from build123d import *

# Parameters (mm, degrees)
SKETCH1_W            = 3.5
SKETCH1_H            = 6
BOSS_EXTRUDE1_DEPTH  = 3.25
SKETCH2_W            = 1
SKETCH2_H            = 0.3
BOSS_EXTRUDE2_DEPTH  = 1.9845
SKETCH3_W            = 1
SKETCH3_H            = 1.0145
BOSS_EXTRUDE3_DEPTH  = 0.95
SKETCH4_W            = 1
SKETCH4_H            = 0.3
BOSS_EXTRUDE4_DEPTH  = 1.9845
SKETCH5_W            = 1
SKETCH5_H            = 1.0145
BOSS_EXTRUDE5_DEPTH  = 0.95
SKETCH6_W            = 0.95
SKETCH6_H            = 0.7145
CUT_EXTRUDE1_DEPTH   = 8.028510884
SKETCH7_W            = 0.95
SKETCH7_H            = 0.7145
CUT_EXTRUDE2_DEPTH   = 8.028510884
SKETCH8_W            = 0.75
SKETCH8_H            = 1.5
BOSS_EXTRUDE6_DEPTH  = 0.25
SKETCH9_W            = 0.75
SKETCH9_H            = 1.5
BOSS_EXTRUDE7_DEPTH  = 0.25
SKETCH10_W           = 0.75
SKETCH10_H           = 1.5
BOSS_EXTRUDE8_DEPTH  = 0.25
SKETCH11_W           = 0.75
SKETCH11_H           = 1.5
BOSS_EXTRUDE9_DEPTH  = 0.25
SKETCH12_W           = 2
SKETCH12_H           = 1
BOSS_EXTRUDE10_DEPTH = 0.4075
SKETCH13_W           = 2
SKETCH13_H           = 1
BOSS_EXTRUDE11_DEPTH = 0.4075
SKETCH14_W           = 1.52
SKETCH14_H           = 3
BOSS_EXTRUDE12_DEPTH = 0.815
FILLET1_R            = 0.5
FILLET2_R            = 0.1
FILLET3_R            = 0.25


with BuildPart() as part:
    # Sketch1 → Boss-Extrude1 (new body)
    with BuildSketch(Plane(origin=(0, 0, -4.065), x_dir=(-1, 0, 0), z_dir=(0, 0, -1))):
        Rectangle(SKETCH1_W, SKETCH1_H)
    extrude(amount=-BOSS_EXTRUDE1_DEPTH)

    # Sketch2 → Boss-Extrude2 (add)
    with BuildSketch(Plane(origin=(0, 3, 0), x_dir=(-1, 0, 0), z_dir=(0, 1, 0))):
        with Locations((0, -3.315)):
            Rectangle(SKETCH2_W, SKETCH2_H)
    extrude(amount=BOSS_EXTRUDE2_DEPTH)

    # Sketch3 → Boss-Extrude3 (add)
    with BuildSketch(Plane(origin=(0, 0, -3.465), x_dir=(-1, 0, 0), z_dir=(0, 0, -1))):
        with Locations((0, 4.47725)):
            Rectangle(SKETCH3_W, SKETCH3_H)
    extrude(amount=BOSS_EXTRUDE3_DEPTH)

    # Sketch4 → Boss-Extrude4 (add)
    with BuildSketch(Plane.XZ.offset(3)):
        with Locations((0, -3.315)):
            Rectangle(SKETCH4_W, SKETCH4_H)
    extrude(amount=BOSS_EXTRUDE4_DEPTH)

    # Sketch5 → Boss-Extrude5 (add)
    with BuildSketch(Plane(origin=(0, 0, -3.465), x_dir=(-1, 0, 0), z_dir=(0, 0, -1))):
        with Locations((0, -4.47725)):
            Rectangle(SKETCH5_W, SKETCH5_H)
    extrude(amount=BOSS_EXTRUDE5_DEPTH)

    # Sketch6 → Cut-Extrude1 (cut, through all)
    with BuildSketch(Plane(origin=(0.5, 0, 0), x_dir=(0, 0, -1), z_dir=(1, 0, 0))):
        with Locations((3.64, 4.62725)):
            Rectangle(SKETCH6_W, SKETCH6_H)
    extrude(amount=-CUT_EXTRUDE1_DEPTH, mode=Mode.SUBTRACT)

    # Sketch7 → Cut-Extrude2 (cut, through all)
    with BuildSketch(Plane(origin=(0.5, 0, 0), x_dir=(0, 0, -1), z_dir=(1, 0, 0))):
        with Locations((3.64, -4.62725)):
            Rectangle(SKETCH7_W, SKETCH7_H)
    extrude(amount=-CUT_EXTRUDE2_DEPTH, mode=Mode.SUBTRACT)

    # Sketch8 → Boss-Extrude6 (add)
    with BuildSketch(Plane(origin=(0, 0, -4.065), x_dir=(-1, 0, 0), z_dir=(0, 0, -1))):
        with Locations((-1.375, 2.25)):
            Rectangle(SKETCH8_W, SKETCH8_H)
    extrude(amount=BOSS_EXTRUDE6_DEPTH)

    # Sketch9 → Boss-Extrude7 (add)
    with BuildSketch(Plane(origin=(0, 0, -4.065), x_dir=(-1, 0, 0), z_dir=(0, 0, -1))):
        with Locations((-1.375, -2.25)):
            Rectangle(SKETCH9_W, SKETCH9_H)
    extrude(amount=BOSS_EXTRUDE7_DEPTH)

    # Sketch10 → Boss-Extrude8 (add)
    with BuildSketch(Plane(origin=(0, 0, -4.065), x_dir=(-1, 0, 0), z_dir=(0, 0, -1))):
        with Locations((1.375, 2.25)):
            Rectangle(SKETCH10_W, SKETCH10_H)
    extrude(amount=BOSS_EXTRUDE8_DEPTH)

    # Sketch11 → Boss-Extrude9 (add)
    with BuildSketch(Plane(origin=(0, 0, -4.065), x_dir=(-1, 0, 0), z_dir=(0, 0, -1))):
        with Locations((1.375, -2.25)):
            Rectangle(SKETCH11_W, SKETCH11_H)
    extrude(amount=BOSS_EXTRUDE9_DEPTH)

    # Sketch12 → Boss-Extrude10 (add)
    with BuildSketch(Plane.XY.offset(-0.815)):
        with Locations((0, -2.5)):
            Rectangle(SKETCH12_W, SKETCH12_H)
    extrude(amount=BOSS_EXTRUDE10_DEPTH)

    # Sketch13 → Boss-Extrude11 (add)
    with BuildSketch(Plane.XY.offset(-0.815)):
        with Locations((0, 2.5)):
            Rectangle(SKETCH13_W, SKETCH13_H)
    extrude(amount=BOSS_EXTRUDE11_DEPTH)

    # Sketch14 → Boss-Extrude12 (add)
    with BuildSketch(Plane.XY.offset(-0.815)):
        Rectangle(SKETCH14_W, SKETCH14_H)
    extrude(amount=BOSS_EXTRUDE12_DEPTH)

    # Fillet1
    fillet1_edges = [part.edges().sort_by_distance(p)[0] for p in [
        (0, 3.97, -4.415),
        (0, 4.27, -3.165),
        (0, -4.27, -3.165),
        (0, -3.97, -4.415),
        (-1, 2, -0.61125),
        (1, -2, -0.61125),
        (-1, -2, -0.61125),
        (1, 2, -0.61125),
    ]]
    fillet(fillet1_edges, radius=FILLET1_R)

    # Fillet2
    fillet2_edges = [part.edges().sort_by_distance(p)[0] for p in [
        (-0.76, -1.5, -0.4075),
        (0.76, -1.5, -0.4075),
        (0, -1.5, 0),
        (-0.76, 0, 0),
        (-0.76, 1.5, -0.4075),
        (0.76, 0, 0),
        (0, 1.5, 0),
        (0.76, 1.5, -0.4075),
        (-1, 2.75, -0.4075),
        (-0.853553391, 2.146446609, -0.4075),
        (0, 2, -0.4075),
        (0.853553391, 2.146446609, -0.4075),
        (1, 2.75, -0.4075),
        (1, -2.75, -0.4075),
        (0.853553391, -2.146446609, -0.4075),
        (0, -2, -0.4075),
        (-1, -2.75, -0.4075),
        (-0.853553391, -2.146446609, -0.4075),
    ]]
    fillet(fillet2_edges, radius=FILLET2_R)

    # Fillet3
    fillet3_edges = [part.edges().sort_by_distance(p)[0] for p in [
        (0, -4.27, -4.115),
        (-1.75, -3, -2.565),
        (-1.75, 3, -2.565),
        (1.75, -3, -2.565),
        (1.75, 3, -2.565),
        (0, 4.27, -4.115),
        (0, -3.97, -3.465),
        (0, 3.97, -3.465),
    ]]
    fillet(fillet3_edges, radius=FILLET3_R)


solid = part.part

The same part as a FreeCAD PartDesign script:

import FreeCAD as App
import Part
import Sketcher
from FreeCAD import Vector
Q = App.Units.Quantity


def edges_at(feature, points):
    """Names of the edges that pass closest to the given points."""
    edges = feature.Shape.Edges
    near = lambda p: min(range(len(edges)), key=lambda i: edges[i].distToShape(Part.Vertex(*p))[0])
    return sorted({f"Edge{near(p) + 1}" for p in points})

doc = App.newDocument("Part")
params = doc.addObject("Spreadsheet::Sheet", "Params")
for row, (alias, value) in enumerate([
    ("sketch1_height", "6 mm"),
    ("sketch1_width", "3.5 mm"),
    ("pad1_length", "3.25 mm"),
    ("sketch2_width", "1 mm"),
    ("sketch2_height", "0.3 mm"),
    ("pad2_length", "1.9845 mm"),
    ("sketch3_width", "1 mm"),
    ("pad3_length", "0.95 mm"),
    ("sketch4_width", "1 mm"),
    ("sketch4_height", "0.3 mm"),
    ("pad4_length", "1.9845 mm"),
    ("sketch5_width", "1 mm"),
    ("pad5_length", "0.95 mm"),
    ("sketch6_height", "0.95 mm"),
    ("sketch7_height", "0.95 mm"),
    ("sketch8_height", "1.5 mm"),
    ("sketch8_width", "0.75 mm"),
    ("pad6_length", "0.25 mm"),
    ("sketch9_height", "1.5 mm"),
    ("sketch9_width", "0.75 mm"),
    ("pad7_length", "0.25 mm"),
    ("sketch10_height", "1.5 mm"),
    ("sketch10_width", "0.75 mm"),
    ("pad8_length", "0.25 mm"),
    ("sketch11_height", "1.5 mm"),
    ("sketch11_width", "0.75 mm"),
    ("pad9_length", "0.25 mm"),
    ("sketch12_width", "2 mm"),
    ("sketch12_height", "1 mm"),
    ("pad10_length", "0.4075 mm"),
    ("sketch13_width", "2 mm"),
    ("sketch13_height", "1 mm"),
    ("pad11_length", "0.4075 mm"),
    ("sketch14_height", "3 mm"),
    ("sketch14_width", "1.52 mm"),
    ("pad12_length", "0.815 mm"),
    ("fillet_radius", "0.5 mm"),
    ("fillet2_radius", "0.1 mm"),
    ("fillet3_radius", "0.25 mm"),
], start=1):
    params.set(f"A{row}", alias)
    params.set(f"B{row}", "=" + value)
    params.setAlias(f"B{row}", alias)

body = doc.addObject("PartDesign::Body", "Body")

sketch1 = doc.addObject("Sketcher::SketchObject", "Sketch")
body.addObject(sketch1)
sketch1.AttachmentSupport = (doc.XY_Plane, [""])
sketch1.MapMode = "FlatFace"
sketch1.AttachmentOffset = App.Placement(Vector(0, 0, -4.065), App.Rotation())
sketch1.addGeometry(Part.LineSegment(Vector(1.8, 3, 0), Vector(1.8, -3, 0)), False)
sketch1.addGeometry(Part.LineSegment(Vector(1.8, -3, 0), Vector(-1.8, -3, 0)), False)
sketch1.addGeometry(Part.LineSegment(Vector(-1.8, -3, 0), Vector(-1.8, 3, 0)), False)
sketch1.addGeometry(Part.LineSegment(Vector(-1.8, 3, 0), Vector(1.8, 3, 0)), False)
sketch1.addConstraint(Sketcher.Constraint("Coincident", 0, 2, 1, 1))
sketch1.addConstraint(Sketcher.Constraint("Coincident", 1, 2, 2, 1))
sketch1.addConstraint(Sketcher.Constraint("Coincident", 2, 2, 3, 1))
sketch1.addConstraint(Sketcher.Constraint("Coincident", 3, 2, 0, 1))
sketch1.addConstraint(Sketcher.Constraint("Vertical", 0))
sketch1.addConstraint(Sketcher.Constraint("Horizontal", 1))
sketch1.addConstraint(Sketcher.Constraint("Vertical", 2))
sketch1.addConstraint(Sketcher.Constraint("Horizontal", 3))
sketch1.addConstraint(Sketcher.Constraint("Symmetric", 0, 2, 2, 2, -1, 1))
sketch1.addConstraint(Sketcher.Constraint("DistanceY", 0, 2, 0, 1, Q("6 mm")))
sketch1.addConstraint(Sketcher.Constraint("DistanceX", 1, 2, 1, 1, Q("3.5 mm")))
sketch1.setExpression("Constraints[9]", "Params.sketch1_height")
sketch1.setExpression("Constraints[10]", "Params.sketch1_width")
pad1 = doc.addObject("PartDesign::Pad", "Pad")
body.addObject(pad1)
pad1.Profile = sketch1
pad1.setExpression("Length", "Params.pad1_length")

sketch2 = doc.addObject("Sketcher::SketchObject", "Sketch001")
body.addObject(sketch2)
sketch2.AttachmentSupport = (doc.XZ_Plane, [""])
sketch2.MapMode = "FlatFace"
sketch2.AttachmentOffset = App.Placement(Vector(0, 0, -3), App.Rotation())
sketch2.addGeometry(Part.LineSegment(Vector(0.5, -3.17, 0), Vector(0.5, -3.46, 0)), False)
sketch2.addGeometry(Part.LineSegment(Vector(0.5, -3.46, 0), Vector(-0.5, -3.46, 0)), False)
sketch2.addGeometry(Part.LineSegment(Vector(-0.5, -3.46, 0), Vector(-0.5, -3.17, 0)), False)
sketch2.addGeometry(Part.LineSegment(Vector(-0.5, -3.17, 0), Vector(0.5, -3.17, 0)), False)
sketch2.addConstraint(Sketcher.Constraint("Coincident", 0, 2, 1, 1))
sketch2.addConstraint(Sketcher.Constraint("Coincident", 1, 2, 2, 1))
sketch2.addConstraint(Sketcher.Constraint("Coincident", 2, 2, 3, 1))
sketch2.addConstraint(Sketcher.Constraint("Coincident", 3, 2, 0, 1))
sketch2.addConstraint(Sketcher.Constraint("Vertical", 0))
sketch2.addConstraint(Sketcher.Constraint("Horizontal", 1))
sketch2.addConstraint(Sketcher.Constraint("Vertical", 2))
sketch2.addConstraint(Sketcher.Constraint("Horizontal", 3))
sketch2.addConstraint(Sketcher.Constraint("DistanceX", 1, 2, 1, 1, Q("1 mm")))
sketch2.addConstraint(Sketcher.Constraint("DistanceY", 0, 2, 0, 1, Q("0.3 mm")))
sketch2.addConstraint(Sketcher.Constraint("DistanceX", -1, 1, 0, 2, Q("0.5 mm")))
sketch2.addConstraint(Sketcher.Constraint("DistanceY", 0, 2, -1, 1, Q("3.465 mm")))
sketch2.setExpression("Constraints[8]", "Params.sketch2_width")
sketch2.setExpression("Constraints[9]", "Params.sketch2_height")
pad2 = doc.addObject("PartDesign::Pad", "Pad001")
body.addObject(pad2)
pad2.Profile = sketch2
pad2.setExpression("Length", "Params.pad2_length")
pad2.Reversed = True

sketch3 = doc.addObject("Sketcher::SketchObject", "Sketch002")
body.addObject(sketch3)
sketch3.AttachmentSupport = (doc.XY_Plane, [""])
sketch3.MapMode = "FlatFace"
sketch3.AttachmentOffset = App.Placement(Vector(0, 0, -3.465), App.Rotation())
sketch3.addGeometry(Part.LineSegment(Vector(0.5, 5, 0), Vector(0.5, 4, 0)), False)
sketch3.addGeometry(Part.LineSegment(Vector(0.5, 4, 0), Vector(-0.5, 4, 0)), False)
sketch3.addGeometry(Part.LineSegment(Vector(-0.5, 4, 0), Vector(-0.5, 5, 0)), False)
sketch3.addGeometry(Part.LineSegment(Vector(-0.5, 5, 0), Vector(0.5, 5, 0)), False)
sketch3.addConstraint(Sketcher.Constraint("Coincident", 0, 2, 1, 1))
sketch3.addConstraint(Sketcher.Constraint("Coincident", 1, 2, 2, 1))
sketch3.addConstraint(Sketcher.Constraint("Coincident", 2, 2, 3, 1))
sketch3.addConstraint(Sketcher.Constraint("Coincident", 3, 2, 0, 1))
sketch3.addConstraint(Sketcher.Constraint("Vertical", 0))
sketch3.addConstraint(Sketcher.Constraint("Horizontal", 1))
sketch3.addConstraint(Sketcher.Constraint("Vertical", 2))
sketch3.addConstraint(Sketcher.Constraint("Horizontal", 3))
sketch3.addConstraint(Sketcher.Constraint("DistanceX", 1, 2, 1, 1, Q("1 mm")))
sketch3.addConstraint(Sketcher.Constraint("DistanceX", -1, 1, 0, 2, Q("0.5 mm")))
sketch3.addConstraint(Sketcher.Constraint("DistanceY", -1, 1, 0, 2, Q("3.97 mm")))
sketch3.addConstraint(Sketcher.Constraint("DistanceY", 0, 2, 0, 1, Q("1.0145 mm")))
sketch3.setExpression("Constraints[8]", "Params.sketch3_width")
pad3 = doc.addObject("PartDesign::Pad", "Pad002")
body.addObject(pad3)
pad3.Profile = sketch3
pad3.setExpression("Length", "Params.pad3_length")
pad3.Reversed = True

sketch4 = doc.addObject("Sketcher::SketchObject", "Sketch003")
body.addObject(sketch4)
sketch4.AttachmentSupport = (doc.XZ_Plane, [""])
sketch4.MapMode = "FlatFace"
sketch4.AttachmentOffset = App.Placement(Vector(0, 0, 3), App.Rotation())
sketch4.addGeometry(Part.LineSegment(Vector(-0.5, -3.17, 0), Vector(-0.5, -3.46, 0)), False)
sketch4.addGeometry(Part.LineSegment(Vector(-0.5, -3.46, 0), Vector(0.5, -3.46, 0)), False)
sketch4.addGeometry(Part.LineSegment(Vector(0.5, -3.46, 0), Vector(0.5, -3.17, 0)), False)
sketch4.addGeometry(Part.LineSegment(Vector(0.5, -3.17, 0), Vector(-0.5, -3.17, 0)), False)
sketch4.addConstraint(Sketcher.Constraint("Coincident", 0, 2, 1, 1))
sketch4.addConstraint(Sketcher.Constraint("Coincident", 1, 2, 2, 1))
sketch4.addConstraint(Sketcher.Constraint("Coincident", 2, 2, 3, 1))
sketch4.addConstraint(Sketcher.Constraint("Coincident", 3, 2, 0, 1))
sketch4.addConstraint(Sketcher.Constraint("Vertical", 0))
sketch4.addConstraint(Sketcher.Constraint("Horizontal", 1))
sketch4.addConstraint(Sketcher.Constraint("Vertical", 2))
sketch4.addConstraint(Sketcher.Constraint("Horizontal", 3))
sketch4.addConstraint(Sketcher.Constraint("DistanceX", 1, 1, 1, 2, Q("1 mm")))
sketch4.addConstraint(Sketcher.Constraint("DistanceY", 0, 2, 0, 1, Q("0.3 mm")))
sketch4.addConstraint(Sketcher.Constraint("DistanceX", 0, 2, -1, 1, Q("0.5 mm")))
sketch4.addConstraint(Sketcher.Constraint("DistanceY", 0, 2, -1, 1, Q("3.465 mm")))
sketch4.setExpression("Constraints[8]", "Params.sketch4_width")
sketch4.setExpression("Constraints[9]", "Params.sketch4_height")
pad4 = doc.addObject("PartDesign::Pad", "Pad003")
body.addObject(pad4)
pad4.Profile = sketch4
pad4.setExpression("Length", "Params.pad4_length")

sketch5 = doc.addObject("Sketcher::SketchObject", "Sketch004")
body.addObject(sketch5)
sketch5.AttachmentSupport = (doc.XY_Plane, [""])
sketch5.MapMode = "FlatFace"
sketch5.AttachmentOffset = App.Placement(Vector(0, 0, -3.465), App.Rotation())
sketch5.addGeometry(Part.LineSegment(Vector(0.5, -4, 0), Vector(0.5, -5, 0)), False)
sketch5.addGeometry(Part.LineSegment(Vector(0.5, -5, 0), Vector(-0.5, -5, 0)), False)
sketch5.addGeometry(Part.LineSegment(Vector(-0.5, -5, 0), Vector(-0.5, -4, 0)), False)
sketch5.addGeometry(Part.LineSegment(Vector(-0.5, -4, 0), Vector(0.5, -4, 0)), False)
sketch5.addConstraint(Sketcher.Constraint("Coincident", 0, 2, 1, 1))
sketch5.addConstraint(Sketcher.Constraint("Coincident", 1, 2, 2, 1))
sketch5.addConstraint(Sketcher.Constraint("Coincident", 2, 2, 3, 1))
sketch5.addConstraint(Sketcher.Constraint("Coincident", 3, 2, 0, 1))
sketch5.addConstraint(Sketcher.Constraint("Vertical", 0))
sketch5.addConstraint(Sketcher.Constraint("Horizontal", 1))
sketch5.addConstraint(Sketcher.Constraint("Vertical", 2))
sketch5.addConstraint(Sketcher.Constraint("Horizontal", 3))
sketch5.addConstraint(Sketcher.Constraint("DistanceX", 1, 2, 1, 1, Q("1 mm")))
sketch5.addConstraint(Sketcher.Constraint("DistanceX", -1, 1, 0, 2, Q("0.5 mm")))
sketch5.addConstraint(Sketcher.Constraint("DistanceY", 2, 2, -1, 1, Q("3.97 mm")))
sketch5.addConstraint(Sketcher.Constraint("DistanceY", 0, 2, 0, 1, Q("1.0145 mm")))
sketch5.setExpression("Constraints[8]", "Params.sketch5_width")
pad5 = doc.addObject("PartDesign::Pad", "Pad004")
body.addObject(pad5)
pad5.Profile = sketch5
pad5.setExpression("Length", "Params.pad5_length")
pad5.Reversed = True

sketch6 = doc.addObject("Sketcher::SketchObject", "Sketch005")
body.addObject(sketch6)
sketch6.AttachmentSupport = (doc.YZ_Plane, [""])
sketch6.MapMode = "FlatFace"
sketch6.AttachmentOffset = App.Placement(Vector(0, 0, 0.5), App.Rotation())
sketch6.addGeometry(Part.LineSegment(Vector(5, -3.2, 0), Vector(4.3, -3.2, 0)), False)
sketch6.addGeometry(Part.LineSegment(Vector(4.3, -3.2, 0), Vector(4.3, -4.1, 0)), False)
sketch6.addGeometry(Part.LineSegment(Vector(4.3, -4.1, 0), Vector(5, -4.1, 0)), False)
sketch6.addGeometry(Part.LineSegment(Vector(5, -4.1, 0), Vector(5, -3.2, 0)), False)
sketch6.addConstraint(Sketcher.Constraint("Coincident", 0, 2, 1, 1))
sketch6.addConstraint(Sketcher.Constraint("Coincident", 1, 2, 2, 1))
sketch6.addConstraint(Sketcher.Constraint("Coincident", 2, 2, 3, 1))
sketch6.addConstraint(Sketcher.Constraint("Coincident", 3, 2, 0, 1))
sketch6.addConstraint(Sketcher.Constraint("Horizontal", 0))
sketch6.addConstraint(Sketcher.Constraint("Vertical", 1))
sketch6.addConstraint(Sketcher.Constraint("Horizontal", 2))
sketch6.addConstraint(Sketcher.Constraint("Vertical", 3))
sketch6.addConstraint(Sketcher.Constraint("DistanceY", 1, 2, 1, 1, Q("0.95 mm")))
sketch6.addConstraint(Sketcher.Constraint("DistanceX", -1, 1, 0, 2, Q("4.27 mm")))
sketch6.addConstraint(Sketcher.Constraint("DistanceX", 0, 2, 0, 1, Q("0.7145 mm")))
sketch6.addConstraint(Sketcher.Constraint("DistanceY", 0, 2, -1, 1, Q("3.165 mm")))
sketch6.setExpression("Constraints[8]", "Params.sketch6_height")
pocket1 = doc.addObject("PartDesign::Pocket", "Pocket")
body.addObject(pocket1)
pocket1.Profile = sketch6
pocket1.Type = "ThroughAll"

sketch7 = doc.addObject("Sketcher::SketchObject", "Sketch006")
body.addObject(sketch7)
sketch7.AttachmentSupport = (doc.YZ_Plane, [""])
sketch7.MapMode = "FlatFace"
sketch7.AttachmentOffset = App.Placement(Vector(0, 0, 0.5), App.Rotation())
sketch7.addGeometry(Part.LineSegment(Vector(-4.3, -3.2, 0), Vector(-5, -3.2, 0)), False)
sketch7.addGeometry(Part.LineSegment(Vector(-5, -3.2, 0), Vector(-5, -4.1, 0)), False)
sketch7.addGeometry(Part.LineSegment(Vector(-5, -4.1, 0), Vector(-4.3, -4.1, 0)), False)
sketch7.addGeometry(Part.LineSegment(Vector(-4.3, -4.1, 0), Vector(-4.3, -3.2, 0)), False)
sketch7.addConstraint(Sketcher.Constraint("Coincident", 0, 2, 1, 1))
sketch7.addConstraint(Sketcher.Constraint("Coincident", 1, 2, 2, 1))
sketch7.addConstraint(Sketcher.Constraint("Coincident", 2, 2, 3, 1))
sketch7.addConstraint(Sketcher.Constraint("Coincident", 3, 2, 0, 1))
sketch7.addConstraint(Sketcher.Constraint("Horizontal", 0))
sketch7.addConstraint(Sketcher.Constraint("Vertical", 1))
sketch7.addConstraint(Sketcher.Constraint("Horizontal", 2))
sketch7.addConstraint(Sketcher.Constraint("Vertical", 3))
sketch7.addConstraint(Sketcher.Constraint("DistanceY", 1, 2, 1, 1, Q("0.95 mm")))
sketch7.addConstraint(Sketcher.Constraint("DistanceX", 2, 2, -1, 1, Q("4.27 mm")))
sketch7.addConstraint(Sketcher.Constraint("DistanceX", 0, 2, 0, 1, Q("0.7145 mm")))
sketch7.addConstraint(Sketcher.Constraint("DistanceY", 0, 2, -1, 1, Q("3.165 mm")))
sketch7.setExpression("Constraints[8]", "Params.sketch7_height")
pocket2 = doc.addObject("PartDesign::Pocket", "Pocket001")
body.addObject(pocket2)
pocket2.Profile = sketch7
pocket2.Type = "ThroughAll"

sketch8 = doc.addObject("Sketcher::SketchObject", "Sketch007")
body.addObject(sketch8)
sketch8.AttachmentSupport = (doc.XY_Plane, [""])
sketch8.MapMode = "FlatFace"
sketch8.AttachmentOffset = App.Placement(Vector(0, 0, -4.065), App.Rotation())
sketch8.addGeometry(Part.LineSegment(Vector(1.8, 3, 0), Vector(1.8, 1.5, 0)), False)
sketch8.addGeometry(Part.LineSegment(Vector(1.8, 1.5, 0), Vector(1, 1.5, 0)), False)
sketch8.addGeometry(Part.LineSegment(Vector(1, 1.5, 0), Vector(1, 3, 0)), False)
sketch8.addGeometry(Part.LineSegment(Vector(1, 3, 0), Vector(1.8, 3, 0)), False)
sketch8.addConstraint(Sketcher.Constraint("Coincident", 0, 2, 1, 1))
sketch8.addConstraint(Sketcher.Constraint("Coincident", 1, 2, 2, 1))
sketch8.addConstraint(Sketcher.Constraint("Coincident", 2, 2, 3, 1))
sketch8.addConstraint(Sketcher.Constraint("Coincident", 3, 2, 0, 1))
sketch8.addConstraint(Sketcher.Constraint("Vertical", 0))
sketch8.addConstraint(Sketcher.Constraint("Horizontal", 1))
sketch8.addConstraint(Sketcher.Constraint("Vertical", 2))
sketch8.addConstraint(Sketcher.Constraint("Horizontal", 3))
sketch8.addConstraint(Sketcher.Constraint("DistanceY", 0, 2, 0, 1, Q("1.5 mm")))
sketch8.addConstraint(Sketcher.Constraint("DistanceX", -1, 1, 1, 2, Q("1 mm")))
sketch8.addConstraint(Sketcher.Constraint("DistanceY", -1, 1, 2, 2, Q("3 mm")))
sketch8.addConstraint(Sketcher.Constraint("DistanceX", 1, 2, 1, 1, Q("0.75 mm")))
sketch8.setExpression("Constraints[8]", "Params.sketch8_height")
sketch8.setExpression("Constraints[11]", "Params.sketch8_width")
pad6 = doc.addObject("PartDesign::Pad", "Pad005")
body.addObject(pad6)
pad6.Profile = sketch8
pad6.setExpression("Length", "Params.pad6_length")
pad6.Reversed = True

sketch9 = doc.addObject("Sketcher::SketchObject", "Sketch008")
body.addObject(sketch9)
sketch9.AttachmentSupport = (doc.XY_Plane, [""])
sketch9.MapMode = "FlatFace"
sketch9.AttachmentOffset = App.Placement(Vector(0, 0, -4.065), App.Rotation())
sketch9.addGeometry(Part.LineSegment(Vector(1.8, -1.5, 0), Vector(1.8, -3, 0)), False)
sketch9.addGeometry(Part.LineSegment(Vector(1.8, -3, 0), Vector(1, -3, 0)), False)
sketch9.addGeometry(Part.LineSegment(Vector(1, -3, 0), Vector(1, -1.5, 0)), False)
sketch9.addGeometry(Part.LineSegment(Vector(1, -1.5, 0), Vector(1.8, -1.5, 0)), False)
sketch9.addConstraint(Sketcher.Constraint("Coincident", 0, 2, 1, 1))
sketch9.addConstraint(Sketcher.Constraint("Coincident", 1, 2, 2, 1))
sketch9.addConstraint(Sketcher.Constraint("Coincident", 2, 2, 3, 1))
sketch9.addConstraint(Sketcher.Constraint("Coincident", 3, 2, 0, 1))
sketch9.addConstraint(Sketcher.Constraint("Vertical", 0))
sketch9.addConstraint(Sketcher.Constraint("Horizontal", 1))
sketch9.addConstraint(Sketcher.Constraint("Vertical", 2))
sketch9.addConstraint(Sketcher.Constraint("Horizontal", 3))
sketch9.addConstraint(Sketcher.Constraint("DistanceY", 0, 2, 0, 1, Q("1.5 mm")))
sketch9.addConstraint(Sketcher.Constraint("DistanceY", 0, 2, -1, 1, Q("3 mm")))
sketch9.addConstraint(Sketcher.Constraint("DistanceX", -1, 1, 1, 2, Q("1 mm")))
sketch9.addConstraint(Sketcher.Constraint("DistanceX", 1, 2, 1, 1, Q("0.75 mm")))
sketch9.setExpression("Constraints[8]", "Params.sketch9_height")
sketch9.setExpression("Constraints[11]", "Params.sketch9_width")
pad7 = doc.addObject("PartDesign::Pad", "Pad006")
body.addObject(pad7)
pad7.Profile = sketch9
pad7.setExpression("Length", "Params.pad7_length")
pad7.Reversed = True

sketch10 = doc.addObject("Sketcher::SketchObject", "Sketch009")
body.addObject(sketch10)
sketch10.AttachmentSupport = (doc.XY_Plane, [""])
sketch10.MapMode = "FlatFace"
sketch10.AttachmentOffset = App.Placement(Vector(0, 0, -4.065), App.Rotation())
sketch10.addGeometry(Part.LineSegment(Vector(-1, 3, 0), Vector(-1, 1.5, 0)), False)
sketch10.addGeometry(Part.LineSegment(Vector(-1, 1.5, 0), Vector(-1.8, 1.5, 0)), False)
sketch10.addGeometry(Part.LineSegment(Vector(-1.8, 1.5, 0), Vector(-1.8, 3, 0)), False)
sketch10.addGeometry(Part.LineSegment(Vector(-1.8, 3, 0), Vector(-1, 3, 0)), False)
sketch10.addConstraint(Sketcher.Constraint("Coincident", 0, 2, 1, 1))
sketch10.addConstraint(Sketcher.Constraint("Coincident", 1, 2, 2, 1))
sketch10.addConstraint(Sketcher.Constraint("Coincident", 2, 2, 3, 1))
sketch10.addConstraint(Sketcher.Constraint("Coincident", 3, 2, 0, 1))
sketch10.addConstraint(Sketcher.Constraint("Vertical", 0))
sketch10.addConstraint(Sketcher.Constraint("Horizontal", 1))
sketch10.addConstraint(Sketcher.Constraint("Vertical", 2))
sketch10.addConstraint(Sketcher.Constraint("Horizontal", 3))
sketch10.addConstraint(Sketcher.Constraint("DistanceY", 0, 2, 0, 1, Q("1.5 mm")))
sketch10.addConstraint(Sketcher.Constraint("DistanceX", 0, 2, -1, 1, Q("1 mm")))
sketch10.addConstraint(Sketcher.Constraint("DistanceY", -1, 1, 2, 2, Q("3 mm")))
sketch10.addConstraint(Sketcher.Constraint("DistanceX", 1, 2, 1, 1, Q("0.75 mm")))
sketch10.setExpression("Constraints[8]", "Params.sketch10_height")
sketch10.setExpression("Constraints[11]", "Params.sketch10_width")
pad8 = doc.addObject("PartDesign::Pad", "Pad007")
body.addObject(pad8)
pad8.Profile = sketch10
pad8.setExpression("Length", "Params.pad8_length")
pad8.Reversed = True

sketch11 = doc.addObject("Sketcher::SketchObject", "Sketch010")
body.addObject(sketch11)
sketch11.AttachmentSupport = (doc.XY_Plane, [""])
sketch11.MapMode = "FlatFace"
sketch11.AttachmentOffset = App.Placement(Vector(0, 0, -4.065), App.Rotation())
sketch11.addGeometry(Part.LineSegment(Vector(-1, -1.5, 0), Vector(-1, -3, 0)), False)
sketch11.addGeometry(Part.LineSegment(Vector(-1, -3, 0), Vector(-1.8, -3, 0)), False)
sketch11.addGeometry(Part.LineSegment(Vector(-1.8, -3, 0), Vector(-1.8, -1.5, 0)), False)
sketch11.addGeometry(Part.LineSegment(Vector(-1.8, -1.5, 0), Vector(-1, -1.5, 0)), False)
sketch11.addConstraint(Sketcher.Constraint("Coincident", 0, 2, 1, 1))
sketch11.addConstraint(Sketcher.Constraint("Coincident", 1, 2, 2, 1))
sketch11.addConstraint(Sketcher.Constraint("Coincident", 2, 2, 3, 1))
sketch11.addConstraint(Sketcher.Constraint("Coincident", 3, 2, 0, 1))
sketch11.addConstraint(Sketcher.Constraint("Vertical", 0))
sketch11.addConstraint(Sketcher.Constraint("Horizontal", 1))
sketch11.addConstraint(Sketcher.Constraint("Vertical", 2))
sketch11.addConstraint(Sketcher.Constraint("Horizontal", 3))
sketch11.addConstraint(Sketcher.Constraint("DistanceY", 0, 2, 0, 1, Q("1.5 mm")))
sketch11.addConstraint(Sketcher.Constraint("DistanceX", 0, 2, -1, 1, Q("1 mm")))
sketch11.addConstraint(Sketcher.Constraint("DistanceY", 0, 2, -1, 1, Q("3 mm")))
sketch11.addConstraint(Sketcher.Constraint("DistanceX", 1, 2, 1, 1, Q("0.75 mm")))
sketch11.setExpression("Constraints[8]", "Params.sketch11_height")
sketch11.setExpression("Constraints[11]", "Params.sketch11_width")
pad9 = doc.addObject("PartDesign::Pad", "Pad008")
body.addObject(pad9)
pad9.Profile = sketch11
pad9.setExpression("Length", "Params.pad9_length")
pad9.Reversed = True

sketch12 = doc.addObject("Sketcher::SketchObject", "Sketch011")
body.addObject(sketch12)
sketch12.AttachmentSupport = (doc.XY_Plane, [""])
sketch12.MapMode = "FlatFace"
sketch12.AttachmentOffset = App.Placement(Vector(0, 0, -0.815), App.Rotation())
sketch12.addGeometry(Part.LineSegment(Vector(-1, -2, 0), Vector(-1, -3, 0)), False)
sketch12.addGeometry(Part.LineSegment(Vector(-1, -3, 0), Vector(1, -3, 0)), False)
sketch12.addGeometry(Part.LineSegment(Vector(1, -3, 0), Vector(1, -2, 0)), False)
sketch12.addGeometry(Part.LineSegment(Vector(1, -2, 0), Vector(-1, -2, 0)), False)
sketch12.addConstraint(Sketcher.Constraint("Coincident", 0, 2, 1, 1))
sketch12.addConstraint(Sketcher.Constraint("Coincident", 1, 2, 2, 1))
sketch12.addConstraint(Sketcher.Constraint("Coincident", 2, 2, 3, 1))
sketch12.addConstraint(Sketcher.Constraint("Coincident", 3, 2, 0, 1))
sketch12.addConstraint(Sketcher.Constraint("Vertical", 0))
sketch12.addConstraint(Sketcher.Constraint("Horizontal", 1))
sketch12.addConstraint(Sketcher.Constraint("Vertical", 2))
sketch12.addConstraint(Sketcher.Constraint("Horizontal", 3))
sketch12.addConstraint(Sketcher.Constraint("DistanceX", 1, 1, 1, 2, Q("2 mm")))
sketch12.addConstraint(Sketcher.Constraint("DistanceY", 0, 2, 0, 1, Q("1 mm")))
sketch12.addConstraint(Sketcher.Constraint("DistanceX", 0, 2, -1, 1, Q("1 mm")))
sketch12.addConstraint(Sketcher.Constraint("DistanceY", 0, 2, -1, 1, Q("3 mm")))
sketch12.setExpression("Constraints[8]", "Params.sketch12_width")
sketch12.setExpression("Constraints[9]", "Params.sketch12_height")
pad10 = doc.addObject("PartDesign::Pad", "Pad009")
body.addObject(pad10)
pad10.Profile = sketch12
pad10.setExpression("Length", "Params.pad10_length")

sketch13 = doc.addObject("Sketcher::SketchObject", "Sketch012")
body.addObject(sketch13)
sketch13.AttachmentSupport = (doc.XY_Plane, [""])
sketch13.MapMode = "FlatFace"
sketch13.AttachmentOffset = App.Placement(Vector(0, 0, -0.815), App.Rotation())
sketch13.addGeometry(Part.LineSegment(Vector(-1, 3, 0), Vector(-1, 2, 0)), False)
sketch13.addGeometry(Part.LineSegment(Vector(-1, 2, 0), Vector(1, 2, 0)), False)
sketch13.addGeometry(Part.LineSegment(Vector(1, 2, 0), Vector(1, 3, 0)), False)
sketch13.addGeometry(Part.LineSegment(Vector(1, 3, 0), Vector(-1, 3, 0)), False)
sketch13.addConstraint(Sketcher.Constraint("Coincident", 0, 2, 1, 1))
sketch13.addConstraint(Sketcher.Constraint("Coincident", 1, 2, 2, 1))
sketch13.addConstraint(Sketcher.Constraint("Coincident", 2, 2, 3, 1))
sketch13.addConstraint(Sketcher.Constraint("Coincident", 3, 2, 0, 1))
sketch13.addConstraint(Sketcher.Constraint("Vertical", 0))
sketch13.addConstraint(Sketcher.Constraint("Horizontal", 1))
sketch13.addConstraint(Sketcher.Constraint("Vertical", 2))
sketch13.addConstraint(Sketcher.Constraint("Horizontal", 3))
sketch13.addConstraint(Sketcher.Constraint("DistanceX", 1, 1, 1, 2, Q("2 mm")))
sketch13.addConstraint(Sketcher.Constraint("DistanceY", 0, 2, 0, 1, Q("1 mm")))
sketch13.addConstraint(Sketcher.Constraint("DistanceX", 0, 2, -1, 1, Q("1 mm")))
sketch13.addConstraint(Sketcher.Constraint("DistanceY", -1, 1, 0, 2, Q("2 mm")))
sketch13.setExpression("Constraints[8]", "Params.sketch13_width")
sketch13.setExpression("Constraints[9]", "Params.sketch13_height")
pad11 = doc.addObject("PartDesign::Pad", "Pad010")
body.addObject(pad11)
pad11.Profile = sketch13
pad11.setExpression("Length", "Params.pad11_length")

sketch14 = doc.addObject("Sketcher::SketchObject", "Sketch013")
body.addObject(sketch14)
sketch14.AttachmentSupport = (doc.XY_Plane, [""])
sketch14.MapMode = "FlatFace"
sketch14.AttachmentOffset = App.Placement(Vector(0, 0, -0.815), App.Rotation())
sketch14.addGeometry(Part.LineSegment(Vector(-0.8, 1.5, 0), Vector(-0.8, -1.5, 0)), False)
sketch14.addGeometry(Part.LineSegment(Vector(-0.8, -1.5, 0), Vector(0.8, -1.5, 0)), False)
sketch14.addGeometry(Part.LineSegment(Vector(0.8, -1.5, 0), Vector(0.8, 1.5, 0)), False)
sketch14.addGeometry(Part.LineSegment(Vector(0.8, 1.5, 0), Vector(-0.8, 1.5, 0)), False)
sketch14.addConstraint(Sketcher.Constraint("Coincident", 0, 2, 1, 1))
sketch14.addConstraint(Sketcher.Constraint("Coincident", 1, 2, 2, 1))
sketch14.addConstraint(Sketcher.Constraint("Coincident", 2, 2, 3, 1))
sketch14.addConstraint(Sketcher.Constraint("Coincident", 3, 2, 0, 1))
sketch14.addConstraint(Sketcher.Constraint("Vertical", 0))
sketch14.addConstraint(Sketcher.Constraint("Horizontal", 1))
sketch14.addConstraint(Sketcher.Constraint("Vertical", 2))
sketch14.addConstraint(Sketcher.Constraint("Horizontal", 3))
sketch14.addConstraint(Sketcher.Constraint("Symmetric", 0, 2, 2, 2, -1, 1))
sketch14.addConstraint(Sketcher.Constraint("DistanceY", 0, 2, 0, 1, Q("3 mm")))
sketch14.addConstraint(Sketcher.Constraint("DistanceX", 1, 1, 1, 2, Q("1.52 mm")))
sketch14.setExpression("Constraints[9]", "Params.sketch14_height")
sketch14.setExpression("Constraints[10]", "Params.sketch14_width")
pad12 = doc.addObject("PartDesign::Pad", "Pad011")
body.addObject(pad12)
pad12.Profile = sketch14
pad12.setExpression("Length", "Params.pad12_length")
doc.recompute()

fillet = doc.addObject("PartDesign::Fillet", "Fillet")
body.addObject(fillet)
fillet.Base = (pad12, edges_at(pad12, [
    (0, 3.97, -4.415),
    (0, 4.27, -3.165),
    (0, -4.27, -3.165),
    (0, -3.97, -4.415),
    (-1, 2, -0.611),
    (1, -2, -0.611),
    (-1, -2, -0.611),
    (1, 2, -0.611),
]))
fillet.setExpression("Radius", "Params.fillet_radius")
doc.recompute()

fillet2 = doc.addObject("PartDesign::Fillet", "Fillet001")
body.addObject(fillet2)
fillet2.Base = (fillet, edges_at(fillet, [
    (-0.76, -1.5, -0.407),
    (0.76, -1.5, -0.407),
    (0, -1.5, 0),
    (-0.76, 0, 0),
    (-0.76, 1.5, -0.407),
    (0.76, 0, 0),
    (0, 1.5, 0),
    (0.76, 1.5, -0.407),
    (-1, 2.75, -0.407),
    (-0.854, 2.146, -0.407),
    (0, 2, -0.407),
    (0.854, 2.146, -0.407),
    (1, 2.75, -0.407),
    (1, -2.75, -0.407),
    (0.854, -2.146, -0.407),
    (0, -2, -0.407),
    (-1, -2.75, -0.407),
    (-0.854, -2.146, -0.407),
]))
fillet2.setExpression("Radius", "Params.fillet2_radius")
doc.recompute()

fillet3 = doc.addObject("PartDesign::Fillet", "Fillet002")
body.addObject(fillet3)
fillet3.Base = (fillet2, edges_at(fillet2, [
    (0, -4.27, -4.115),
    (-1.75, -3, -2.565),
    (-1.75, 3, -2.565),
    (1.75, -3, -2.565),
    (1.75, 3, -2.565),
    (0, 4.27, -4.115),
    (0, -3.97, -3.465),
    (0, 3.97, -3.465),
]))
fillet3.setExpression("Radius", "Params.fillet3_radius")

doc.recompute()
